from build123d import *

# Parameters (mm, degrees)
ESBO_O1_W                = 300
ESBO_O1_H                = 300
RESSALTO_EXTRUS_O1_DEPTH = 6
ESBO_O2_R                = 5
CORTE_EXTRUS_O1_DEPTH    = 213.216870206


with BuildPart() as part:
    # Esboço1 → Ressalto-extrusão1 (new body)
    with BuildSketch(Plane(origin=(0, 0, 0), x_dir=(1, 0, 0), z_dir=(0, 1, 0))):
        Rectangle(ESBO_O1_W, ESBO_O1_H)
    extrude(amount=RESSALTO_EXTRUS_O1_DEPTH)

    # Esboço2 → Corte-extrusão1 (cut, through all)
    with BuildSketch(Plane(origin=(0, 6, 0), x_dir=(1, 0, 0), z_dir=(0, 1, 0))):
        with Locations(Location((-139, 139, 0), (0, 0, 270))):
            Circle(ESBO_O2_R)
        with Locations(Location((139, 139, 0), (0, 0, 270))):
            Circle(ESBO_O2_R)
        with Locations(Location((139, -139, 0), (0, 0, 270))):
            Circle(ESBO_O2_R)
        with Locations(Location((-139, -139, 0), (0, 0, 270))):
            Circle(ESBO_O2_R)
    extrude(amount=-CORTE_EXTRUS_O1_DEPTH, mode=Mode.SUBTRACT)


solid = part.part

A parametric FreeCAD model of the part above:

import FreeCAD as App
import Part
import Sketcher

V = App.Vector

doc = App.newDocument("Part")
params = doc.addObject("Spreadsheet::Sheet", "Params")
for row, (alias, value) in enumerate([
    ("sketch1_width", "300 mm"),
    ("pad1_length", "6 mm"),
    ("sketch2_diameter", "10 mm"),
], start=1):
    params.set(f"A{row}", alias)
    params.set(f"B{row}", "=" + value)
    params.setAlias(f"B{row}", alias)

body = doc.addObject("PartDesign::Body", "Body")

# Sketch on XZ plane
sketch1 = doc.addObject("Sketcher::SketchObject", "Sketch")
body.addObject(sketch1)
sketch1.AttachmentSupport = (doc.XZ_Plane, [""])
sketch1.MapMode = "FlatFace"
sketch1.addGeometry(Part.LineSegment(V(-150, -150, 0), V(-150, 150, 0)), False)
sketch1.addGeometry(Part.LineSegment(V(-150, 150, 0), V(150, 150, 0)), False)
sketch1.addGeometry(Part.LineSegment(V(150, 150, 0), V(150, -150, 0)), False)
sketch1.addGeometry(Part.LineSegment(V(150, -150, 0), V(-150, -150, 0)), False)
sketch1.addConstraint(Sketcher.Constraint("Coincident", 0, 2, 1, 1))
sketch1.addConstraint(Sketcher.Constraint("Coincident", 1, 2, 2, 1))
sketch1.addConstraint(Sketcher.Constraint("Coincident", 2, 2, 3, 1))
sketch1.addConstraint(Sketcher.Constraint("Coincident", 3, 2, 0, 1))
sketch1.addConstraint(Sketcher.Constraint("Vertical", 0))
sketch1.addConstraint(Sketcher.Constraint("Horizontal", 1))
sketch1.addConstraint(Sketcher.Constraint("Vertical", 2))
sketch1.addConstraint(Sketcher.Constraint("Horizontal", 3))
sketch1.addConstraint(Sketcher.Constraint("Symmetric", 0, 2, 2, 2, -1, 1))
sketch1.addConstraint(Sketcher.Constraint("Equal", 3, 0))
sketch1.addConstraint(Sketcher.Constraint("DistanceX", 1, 1, 1, 2, 300.0))
sketch1.setExpression("Constraints[10]", "Params.sketch1_width")
pad1 = doc.addObject("PartDesign::Pad", "Pad")
body.addObject(pad1)
pad1.Profile = sketch1
pad1.setExpression("Length", "Params.pad1_length")
pad1.Reversed = True

# Sketch on XZ plane
sketch2 = doc.addObject("Sketcher::SketchObject", "Sketch001")
body.addObject(sketch2)
sketch2.AttachmentSupport = (doc.XZ_Plane, [""])
sketch2.MapMode = "FlatFace"
sketch2.AttachmentOffset = App.Placement(V(0, 0, -6), App.Rotation())
sketch2.addGeometry(Part.Circle(V(-139, -139, 0), V(0, 0, 1), 5), False)
sketch2.addGeometry(Part.Circle(V(139, -139, 0), V(0, 0, 1), 5), False)
sketch2.addGeometry(Part.Circle(V(139, 139, 0), V(0, 0, 1), 5), False)
sketch2.addGeometry(Part.Circle(V(-139, 139, 0), V(0, 0, 1), 5), False)
sketch2.addConstraint(Sketcher.Constraint("Equal", 0, 1))
sketch2.addConstraint(Sketcher.Constraint("Equal", 1, 2))
sketch2.addConstraint(Sketcher.Constraint("Equal", 2, 3))
sketch2.addConstraint(Sketcher.Constraint("Symmetric", 0, 3, 2, 3, -1, 1))
sketch2.addConstraint(Sketcher.Constraint("Symmetric", 1, 3, 3, 3, -1, 1))
sketch2.addConstraint(Sketcher.Constraint("Symmetric", 0, 3, 1, 3, -2))
sketch2.addConstraint(Sketcher.Constraint("Diameter", 0, 10.0))
sketch2.addConstraint(Sketcher.Constraint("DistanceX", 0, 3, -1, 1, 139.0))
sketch2.addConstraint(Sketcher.Constraint("DistanceY", 0, 3, -1, 1, 139.0))
sketch2.setExpression("Constraints[6]", "Params.sketch2_diameter")
pocket1 = doc.addObject("PartDesign::Pocket", "Pocket")
body.addObject(pocket1)
pocket1.Profile = sketch2
pocket1.Type = "ThroughAll"
pocket1.Reversed = True

doc.recompute()
